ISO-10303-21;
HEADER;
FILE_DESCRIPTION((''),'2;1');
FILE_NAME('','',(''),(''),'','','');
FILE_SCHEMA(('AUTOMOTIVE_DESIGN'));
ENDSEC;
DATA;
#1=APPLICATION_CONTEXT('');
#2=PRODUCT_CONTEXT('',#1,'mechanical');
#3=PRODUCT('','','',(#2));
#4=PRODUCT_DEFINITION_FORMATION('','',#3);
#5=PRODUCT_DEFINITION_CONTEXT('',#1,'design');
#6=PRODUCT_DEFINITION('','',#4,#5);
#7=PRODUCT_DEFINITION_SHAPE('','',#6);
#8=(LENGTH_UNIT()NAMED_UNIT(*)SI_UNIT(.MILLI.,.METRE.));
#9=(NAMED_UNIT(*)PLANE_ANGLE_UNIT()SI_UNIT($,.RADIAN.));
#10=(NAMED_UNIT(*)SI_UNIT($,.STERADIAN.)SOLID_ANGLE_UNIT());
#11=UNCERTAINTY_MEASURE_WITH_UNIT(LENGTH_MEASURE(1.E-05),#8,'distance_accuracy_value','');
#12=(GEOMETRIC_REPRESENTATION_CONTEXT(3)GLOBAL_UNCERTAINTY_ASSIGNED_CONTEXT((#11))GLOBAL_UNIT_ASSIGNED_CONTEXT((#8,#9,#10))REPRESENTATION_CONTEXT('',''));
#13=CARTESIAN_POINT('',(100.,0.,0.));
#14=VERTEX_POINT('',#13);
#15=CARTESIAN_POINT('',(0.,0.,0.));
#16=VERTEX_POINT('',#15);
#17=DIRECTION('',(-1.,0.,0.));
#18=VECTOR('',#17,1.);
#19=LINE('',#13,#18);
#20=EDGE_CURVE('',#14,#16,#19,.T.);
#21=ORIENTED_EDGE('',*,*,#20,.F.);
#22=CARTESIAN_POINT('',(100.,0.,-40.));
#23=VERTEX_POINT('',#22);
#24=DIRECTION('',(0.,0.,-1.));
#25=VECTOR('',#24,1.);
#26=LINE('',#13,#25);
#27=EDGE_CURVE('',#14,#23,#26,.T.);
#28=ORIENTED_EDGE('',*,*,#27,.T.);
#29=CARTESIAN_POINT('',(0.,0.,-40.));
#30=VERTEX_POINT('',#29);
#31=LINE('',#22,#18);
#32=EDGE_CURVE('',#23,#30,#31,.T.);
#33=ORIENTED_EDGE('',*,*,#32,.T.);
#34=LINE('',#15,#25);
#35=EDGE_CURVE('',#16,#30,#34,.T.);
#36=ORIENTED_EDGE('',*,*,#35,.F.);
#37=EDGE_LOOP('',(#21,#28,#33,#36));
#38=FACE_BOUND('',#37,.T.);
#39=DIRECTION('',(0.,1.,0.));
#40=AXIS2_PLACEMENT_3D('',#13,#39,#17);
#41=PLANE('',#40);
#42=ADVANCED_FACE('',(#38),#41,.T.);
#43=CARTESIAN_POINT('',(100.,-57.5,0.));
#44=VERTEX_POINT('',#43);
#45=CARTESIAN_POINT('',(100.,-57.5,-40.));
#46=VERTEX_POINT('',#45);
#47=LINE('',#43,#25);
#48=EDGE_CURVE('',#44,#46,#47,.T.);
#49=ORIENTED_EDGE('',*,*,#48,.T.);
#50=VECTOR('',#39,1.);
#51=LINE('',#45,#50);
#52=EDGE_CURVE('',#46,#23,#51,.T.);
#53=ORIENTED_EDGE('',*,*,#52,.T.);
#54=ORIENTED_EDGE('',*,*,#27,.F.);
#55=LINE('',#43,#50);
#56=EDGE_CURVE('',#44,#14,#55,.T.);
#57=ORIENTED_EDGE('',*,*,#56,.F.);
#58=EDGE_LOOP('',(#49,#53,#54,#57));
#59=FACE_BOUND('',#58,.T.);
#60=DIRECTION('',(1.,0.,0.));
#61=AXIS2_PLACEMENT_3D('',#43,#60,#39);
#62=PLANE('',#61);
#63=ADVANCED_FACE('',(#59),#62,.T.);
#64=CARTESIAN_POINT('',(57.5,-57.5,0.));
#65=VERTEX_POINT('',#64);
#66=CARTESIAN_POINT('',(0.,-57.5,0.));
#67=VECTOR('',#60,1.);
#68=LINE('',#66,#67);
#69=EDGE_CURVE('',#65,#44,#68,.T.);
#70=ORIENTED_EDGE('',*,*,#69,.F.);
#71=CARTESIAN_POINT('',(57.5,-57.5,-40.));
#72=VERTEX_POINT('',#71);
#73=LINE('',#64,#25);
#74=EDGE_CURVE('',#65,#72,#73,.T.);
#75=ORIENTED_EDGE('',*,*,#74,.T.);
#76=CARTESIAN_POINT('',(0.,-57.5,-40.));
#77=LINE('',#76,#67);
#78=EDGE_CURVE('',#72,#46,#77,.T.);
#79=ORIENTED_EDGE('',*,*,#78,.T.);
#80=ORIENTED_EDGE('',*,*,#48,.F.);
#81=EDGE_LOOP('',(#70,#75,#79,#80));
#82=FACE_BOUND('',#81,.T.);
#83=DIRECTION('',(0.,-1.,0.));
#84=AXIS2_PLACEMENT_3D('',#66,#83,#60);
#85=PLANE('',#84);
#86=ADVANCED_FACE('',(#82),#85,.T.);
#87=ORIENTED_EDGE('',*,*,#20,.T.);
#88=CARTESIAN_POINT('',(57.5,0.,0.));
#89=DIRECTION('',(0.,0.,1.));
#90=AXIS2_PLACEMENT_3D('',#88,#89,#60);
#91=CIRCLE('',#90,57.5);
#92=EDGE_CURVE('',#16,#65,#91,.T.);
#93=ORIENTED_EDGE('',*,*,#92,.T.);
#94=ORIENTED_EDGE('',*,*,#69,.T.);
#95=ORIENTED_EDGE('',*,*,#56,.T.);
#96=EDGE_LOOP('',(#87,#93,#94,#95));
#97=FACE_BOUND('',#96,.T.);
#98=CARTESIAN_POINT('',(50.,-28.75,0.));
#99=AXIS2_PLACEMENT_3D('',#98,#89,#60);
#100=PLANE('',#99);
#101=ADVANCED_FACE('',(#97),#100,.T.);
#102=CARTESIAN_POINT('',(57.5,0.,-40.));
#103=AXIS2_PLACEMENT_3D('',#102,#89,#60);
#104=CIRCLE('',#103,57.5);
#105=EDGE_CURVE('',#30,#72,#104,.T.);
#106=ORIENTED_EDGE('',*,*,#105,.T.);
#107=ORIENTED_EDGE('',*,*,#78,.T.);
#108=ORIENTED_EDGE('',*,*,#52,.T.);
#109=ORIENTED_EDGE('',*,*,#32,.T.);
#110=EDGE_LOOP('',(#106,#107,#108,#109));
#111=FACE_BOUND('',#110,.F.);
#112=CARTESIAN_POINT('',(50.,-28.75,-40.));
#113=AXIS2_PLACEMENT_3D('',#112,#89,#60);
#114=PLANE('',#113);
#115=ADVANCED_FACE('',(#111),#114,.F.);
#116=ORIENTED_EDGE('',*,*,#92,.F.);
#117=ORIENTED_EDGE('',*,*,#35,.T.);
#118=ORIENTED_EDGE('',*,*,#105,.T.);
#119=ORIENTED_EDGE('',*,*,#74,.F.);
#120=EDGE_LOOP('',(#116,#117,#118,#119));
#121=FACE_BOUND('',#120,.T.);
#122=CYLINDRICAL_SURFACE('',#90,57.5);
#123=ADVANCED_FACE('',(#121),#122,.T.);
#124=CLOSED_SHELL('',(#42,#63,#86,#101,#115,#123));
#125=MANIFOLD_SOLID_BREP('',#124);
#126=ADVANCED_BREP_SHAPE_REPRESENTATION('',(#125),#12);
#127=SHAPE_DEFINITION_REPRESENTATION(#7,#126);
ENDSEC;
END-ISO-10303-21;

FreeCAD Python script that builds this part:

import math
import FreeCAD as App
import Part
import Sketcher
from FreeCAD import Vector

doc = App.newDocument("Part")
body = doc.addObject("PartDesign::Body", "Body")

# Sketch on XY plane
sketch1 = body.newObject("Sketcher::SketchObject", "Sketch")
sketch1.AttachmentSupport = (doc.getObject("XY_Plane"), [""])
sketch1.MapMode = "FlatFace"
sketch1.addGeometry(Part.LineSegment(Vector(0, 0, 0), Vector(0, -57.5, 0)), False)
sketch1.addGeometry(Part.LineSegment(Vector(0, -57.5, 0), Vector(100, -57.5, 0)), False)
sketch1.addGeometry(Part.LineSegment(Vector(100, -57.5, 0), Vector(100, 0, 0)), False)
sketch1.addGeometry(Part.LineSegment(Vector(100, 0, 0), Vector(0, 0, 0)), False)
sketch1.addConstraint(Sketcher.Constraint("Coincident", 0, 2, 1, 1))
sketch1.addConstraint(Sketcher.Constraint("Coincident", 1, 2, 2, 1))
sketch1.addConstraint(Sketcher.Constraint("Coincident", 2, 2, 3, 1))
sketch1.addConstraint(Sketcher.Constraint("Coincident", 3, 2, 0, 1))
sketch1.addConstraint(Sketcher.Constraint("Vertical", 0))
sketch1.addConstraint(Sketcher.Constraint("Horizontal", 1))
sketch1.addConstraint(Sketcher.Constraint("Vertical", 2))
sketch1.addConstraint(Sketcher.Constraint("Horizontal", 3))
sketch1.addConstraint(Sketcher.Constraint("Coincident", 3, 2, -1, 1))
sketch1.addConstraint(Sketcher.Constraint("DistanceX", 1, 1, 1, 2, 100.0))
sketch1.addConstraint(Sketcher.Constraint("DistanceY", 0, 2, 0, 1, 57.5))
pad1 = body.newObject("PartDesign::Pad", "Pad")
pad1.Profile = sketch1
pad1.Length = 40
pad1.Reversed = True

# Sketch on XY plane
sketch2 = body.newObject("Sketcher::SketchObject", "Sketch001")
sketch2.AttachmentSupport = (doc.getObject("XY_Plane"), [""])
sketch2.MapMode = "FlatFace"
sketch2.addGeometry(Part.ArcOfCircle(Part.Circle(Vector(57.5, 0, 0), Vector(0, 0, 1), 57.5), math.radians(180), math.radians(270)), False)
sketch2.addGeometry(Part.LineSegment(Vector(0, 0, 0), Vector(0, -57.5, 0)), False)
sketch2.addGeometry(Part.LineSegment(Vector(0, -57.5, 0), Vector(57.5, -57.5, 0)), False)
sketch2.addConstraint(Sketcher.Constraint("Tangent", 0, 1, 1, 1))
sketch2.addConstraint(Sketcher.Constraint("Coincident", 1, 2, 2, 1))
sketch2.addConstraint(Sketcher.Constraint("Tangent", 2, 2, 0, 2))
sketch2.addConstraint(Sketcher.Constraint("Vertical", 1))
sketch2.addConstraint(Sketcher.Constraint("Horizontal", 2))
sketch2.addConstraint(Sketcher.Constraint("Coincident", 0, 1, -1, 1))
sketch2.addConstraint(Sketcher.Constraint("Radius", 0, 57.5))
pocket1 = body.newObject("PartDesign::Pocket", "Pocket")
pocket1.Profile = sketch2
pocket1.Length = 40

doc.recompute()
